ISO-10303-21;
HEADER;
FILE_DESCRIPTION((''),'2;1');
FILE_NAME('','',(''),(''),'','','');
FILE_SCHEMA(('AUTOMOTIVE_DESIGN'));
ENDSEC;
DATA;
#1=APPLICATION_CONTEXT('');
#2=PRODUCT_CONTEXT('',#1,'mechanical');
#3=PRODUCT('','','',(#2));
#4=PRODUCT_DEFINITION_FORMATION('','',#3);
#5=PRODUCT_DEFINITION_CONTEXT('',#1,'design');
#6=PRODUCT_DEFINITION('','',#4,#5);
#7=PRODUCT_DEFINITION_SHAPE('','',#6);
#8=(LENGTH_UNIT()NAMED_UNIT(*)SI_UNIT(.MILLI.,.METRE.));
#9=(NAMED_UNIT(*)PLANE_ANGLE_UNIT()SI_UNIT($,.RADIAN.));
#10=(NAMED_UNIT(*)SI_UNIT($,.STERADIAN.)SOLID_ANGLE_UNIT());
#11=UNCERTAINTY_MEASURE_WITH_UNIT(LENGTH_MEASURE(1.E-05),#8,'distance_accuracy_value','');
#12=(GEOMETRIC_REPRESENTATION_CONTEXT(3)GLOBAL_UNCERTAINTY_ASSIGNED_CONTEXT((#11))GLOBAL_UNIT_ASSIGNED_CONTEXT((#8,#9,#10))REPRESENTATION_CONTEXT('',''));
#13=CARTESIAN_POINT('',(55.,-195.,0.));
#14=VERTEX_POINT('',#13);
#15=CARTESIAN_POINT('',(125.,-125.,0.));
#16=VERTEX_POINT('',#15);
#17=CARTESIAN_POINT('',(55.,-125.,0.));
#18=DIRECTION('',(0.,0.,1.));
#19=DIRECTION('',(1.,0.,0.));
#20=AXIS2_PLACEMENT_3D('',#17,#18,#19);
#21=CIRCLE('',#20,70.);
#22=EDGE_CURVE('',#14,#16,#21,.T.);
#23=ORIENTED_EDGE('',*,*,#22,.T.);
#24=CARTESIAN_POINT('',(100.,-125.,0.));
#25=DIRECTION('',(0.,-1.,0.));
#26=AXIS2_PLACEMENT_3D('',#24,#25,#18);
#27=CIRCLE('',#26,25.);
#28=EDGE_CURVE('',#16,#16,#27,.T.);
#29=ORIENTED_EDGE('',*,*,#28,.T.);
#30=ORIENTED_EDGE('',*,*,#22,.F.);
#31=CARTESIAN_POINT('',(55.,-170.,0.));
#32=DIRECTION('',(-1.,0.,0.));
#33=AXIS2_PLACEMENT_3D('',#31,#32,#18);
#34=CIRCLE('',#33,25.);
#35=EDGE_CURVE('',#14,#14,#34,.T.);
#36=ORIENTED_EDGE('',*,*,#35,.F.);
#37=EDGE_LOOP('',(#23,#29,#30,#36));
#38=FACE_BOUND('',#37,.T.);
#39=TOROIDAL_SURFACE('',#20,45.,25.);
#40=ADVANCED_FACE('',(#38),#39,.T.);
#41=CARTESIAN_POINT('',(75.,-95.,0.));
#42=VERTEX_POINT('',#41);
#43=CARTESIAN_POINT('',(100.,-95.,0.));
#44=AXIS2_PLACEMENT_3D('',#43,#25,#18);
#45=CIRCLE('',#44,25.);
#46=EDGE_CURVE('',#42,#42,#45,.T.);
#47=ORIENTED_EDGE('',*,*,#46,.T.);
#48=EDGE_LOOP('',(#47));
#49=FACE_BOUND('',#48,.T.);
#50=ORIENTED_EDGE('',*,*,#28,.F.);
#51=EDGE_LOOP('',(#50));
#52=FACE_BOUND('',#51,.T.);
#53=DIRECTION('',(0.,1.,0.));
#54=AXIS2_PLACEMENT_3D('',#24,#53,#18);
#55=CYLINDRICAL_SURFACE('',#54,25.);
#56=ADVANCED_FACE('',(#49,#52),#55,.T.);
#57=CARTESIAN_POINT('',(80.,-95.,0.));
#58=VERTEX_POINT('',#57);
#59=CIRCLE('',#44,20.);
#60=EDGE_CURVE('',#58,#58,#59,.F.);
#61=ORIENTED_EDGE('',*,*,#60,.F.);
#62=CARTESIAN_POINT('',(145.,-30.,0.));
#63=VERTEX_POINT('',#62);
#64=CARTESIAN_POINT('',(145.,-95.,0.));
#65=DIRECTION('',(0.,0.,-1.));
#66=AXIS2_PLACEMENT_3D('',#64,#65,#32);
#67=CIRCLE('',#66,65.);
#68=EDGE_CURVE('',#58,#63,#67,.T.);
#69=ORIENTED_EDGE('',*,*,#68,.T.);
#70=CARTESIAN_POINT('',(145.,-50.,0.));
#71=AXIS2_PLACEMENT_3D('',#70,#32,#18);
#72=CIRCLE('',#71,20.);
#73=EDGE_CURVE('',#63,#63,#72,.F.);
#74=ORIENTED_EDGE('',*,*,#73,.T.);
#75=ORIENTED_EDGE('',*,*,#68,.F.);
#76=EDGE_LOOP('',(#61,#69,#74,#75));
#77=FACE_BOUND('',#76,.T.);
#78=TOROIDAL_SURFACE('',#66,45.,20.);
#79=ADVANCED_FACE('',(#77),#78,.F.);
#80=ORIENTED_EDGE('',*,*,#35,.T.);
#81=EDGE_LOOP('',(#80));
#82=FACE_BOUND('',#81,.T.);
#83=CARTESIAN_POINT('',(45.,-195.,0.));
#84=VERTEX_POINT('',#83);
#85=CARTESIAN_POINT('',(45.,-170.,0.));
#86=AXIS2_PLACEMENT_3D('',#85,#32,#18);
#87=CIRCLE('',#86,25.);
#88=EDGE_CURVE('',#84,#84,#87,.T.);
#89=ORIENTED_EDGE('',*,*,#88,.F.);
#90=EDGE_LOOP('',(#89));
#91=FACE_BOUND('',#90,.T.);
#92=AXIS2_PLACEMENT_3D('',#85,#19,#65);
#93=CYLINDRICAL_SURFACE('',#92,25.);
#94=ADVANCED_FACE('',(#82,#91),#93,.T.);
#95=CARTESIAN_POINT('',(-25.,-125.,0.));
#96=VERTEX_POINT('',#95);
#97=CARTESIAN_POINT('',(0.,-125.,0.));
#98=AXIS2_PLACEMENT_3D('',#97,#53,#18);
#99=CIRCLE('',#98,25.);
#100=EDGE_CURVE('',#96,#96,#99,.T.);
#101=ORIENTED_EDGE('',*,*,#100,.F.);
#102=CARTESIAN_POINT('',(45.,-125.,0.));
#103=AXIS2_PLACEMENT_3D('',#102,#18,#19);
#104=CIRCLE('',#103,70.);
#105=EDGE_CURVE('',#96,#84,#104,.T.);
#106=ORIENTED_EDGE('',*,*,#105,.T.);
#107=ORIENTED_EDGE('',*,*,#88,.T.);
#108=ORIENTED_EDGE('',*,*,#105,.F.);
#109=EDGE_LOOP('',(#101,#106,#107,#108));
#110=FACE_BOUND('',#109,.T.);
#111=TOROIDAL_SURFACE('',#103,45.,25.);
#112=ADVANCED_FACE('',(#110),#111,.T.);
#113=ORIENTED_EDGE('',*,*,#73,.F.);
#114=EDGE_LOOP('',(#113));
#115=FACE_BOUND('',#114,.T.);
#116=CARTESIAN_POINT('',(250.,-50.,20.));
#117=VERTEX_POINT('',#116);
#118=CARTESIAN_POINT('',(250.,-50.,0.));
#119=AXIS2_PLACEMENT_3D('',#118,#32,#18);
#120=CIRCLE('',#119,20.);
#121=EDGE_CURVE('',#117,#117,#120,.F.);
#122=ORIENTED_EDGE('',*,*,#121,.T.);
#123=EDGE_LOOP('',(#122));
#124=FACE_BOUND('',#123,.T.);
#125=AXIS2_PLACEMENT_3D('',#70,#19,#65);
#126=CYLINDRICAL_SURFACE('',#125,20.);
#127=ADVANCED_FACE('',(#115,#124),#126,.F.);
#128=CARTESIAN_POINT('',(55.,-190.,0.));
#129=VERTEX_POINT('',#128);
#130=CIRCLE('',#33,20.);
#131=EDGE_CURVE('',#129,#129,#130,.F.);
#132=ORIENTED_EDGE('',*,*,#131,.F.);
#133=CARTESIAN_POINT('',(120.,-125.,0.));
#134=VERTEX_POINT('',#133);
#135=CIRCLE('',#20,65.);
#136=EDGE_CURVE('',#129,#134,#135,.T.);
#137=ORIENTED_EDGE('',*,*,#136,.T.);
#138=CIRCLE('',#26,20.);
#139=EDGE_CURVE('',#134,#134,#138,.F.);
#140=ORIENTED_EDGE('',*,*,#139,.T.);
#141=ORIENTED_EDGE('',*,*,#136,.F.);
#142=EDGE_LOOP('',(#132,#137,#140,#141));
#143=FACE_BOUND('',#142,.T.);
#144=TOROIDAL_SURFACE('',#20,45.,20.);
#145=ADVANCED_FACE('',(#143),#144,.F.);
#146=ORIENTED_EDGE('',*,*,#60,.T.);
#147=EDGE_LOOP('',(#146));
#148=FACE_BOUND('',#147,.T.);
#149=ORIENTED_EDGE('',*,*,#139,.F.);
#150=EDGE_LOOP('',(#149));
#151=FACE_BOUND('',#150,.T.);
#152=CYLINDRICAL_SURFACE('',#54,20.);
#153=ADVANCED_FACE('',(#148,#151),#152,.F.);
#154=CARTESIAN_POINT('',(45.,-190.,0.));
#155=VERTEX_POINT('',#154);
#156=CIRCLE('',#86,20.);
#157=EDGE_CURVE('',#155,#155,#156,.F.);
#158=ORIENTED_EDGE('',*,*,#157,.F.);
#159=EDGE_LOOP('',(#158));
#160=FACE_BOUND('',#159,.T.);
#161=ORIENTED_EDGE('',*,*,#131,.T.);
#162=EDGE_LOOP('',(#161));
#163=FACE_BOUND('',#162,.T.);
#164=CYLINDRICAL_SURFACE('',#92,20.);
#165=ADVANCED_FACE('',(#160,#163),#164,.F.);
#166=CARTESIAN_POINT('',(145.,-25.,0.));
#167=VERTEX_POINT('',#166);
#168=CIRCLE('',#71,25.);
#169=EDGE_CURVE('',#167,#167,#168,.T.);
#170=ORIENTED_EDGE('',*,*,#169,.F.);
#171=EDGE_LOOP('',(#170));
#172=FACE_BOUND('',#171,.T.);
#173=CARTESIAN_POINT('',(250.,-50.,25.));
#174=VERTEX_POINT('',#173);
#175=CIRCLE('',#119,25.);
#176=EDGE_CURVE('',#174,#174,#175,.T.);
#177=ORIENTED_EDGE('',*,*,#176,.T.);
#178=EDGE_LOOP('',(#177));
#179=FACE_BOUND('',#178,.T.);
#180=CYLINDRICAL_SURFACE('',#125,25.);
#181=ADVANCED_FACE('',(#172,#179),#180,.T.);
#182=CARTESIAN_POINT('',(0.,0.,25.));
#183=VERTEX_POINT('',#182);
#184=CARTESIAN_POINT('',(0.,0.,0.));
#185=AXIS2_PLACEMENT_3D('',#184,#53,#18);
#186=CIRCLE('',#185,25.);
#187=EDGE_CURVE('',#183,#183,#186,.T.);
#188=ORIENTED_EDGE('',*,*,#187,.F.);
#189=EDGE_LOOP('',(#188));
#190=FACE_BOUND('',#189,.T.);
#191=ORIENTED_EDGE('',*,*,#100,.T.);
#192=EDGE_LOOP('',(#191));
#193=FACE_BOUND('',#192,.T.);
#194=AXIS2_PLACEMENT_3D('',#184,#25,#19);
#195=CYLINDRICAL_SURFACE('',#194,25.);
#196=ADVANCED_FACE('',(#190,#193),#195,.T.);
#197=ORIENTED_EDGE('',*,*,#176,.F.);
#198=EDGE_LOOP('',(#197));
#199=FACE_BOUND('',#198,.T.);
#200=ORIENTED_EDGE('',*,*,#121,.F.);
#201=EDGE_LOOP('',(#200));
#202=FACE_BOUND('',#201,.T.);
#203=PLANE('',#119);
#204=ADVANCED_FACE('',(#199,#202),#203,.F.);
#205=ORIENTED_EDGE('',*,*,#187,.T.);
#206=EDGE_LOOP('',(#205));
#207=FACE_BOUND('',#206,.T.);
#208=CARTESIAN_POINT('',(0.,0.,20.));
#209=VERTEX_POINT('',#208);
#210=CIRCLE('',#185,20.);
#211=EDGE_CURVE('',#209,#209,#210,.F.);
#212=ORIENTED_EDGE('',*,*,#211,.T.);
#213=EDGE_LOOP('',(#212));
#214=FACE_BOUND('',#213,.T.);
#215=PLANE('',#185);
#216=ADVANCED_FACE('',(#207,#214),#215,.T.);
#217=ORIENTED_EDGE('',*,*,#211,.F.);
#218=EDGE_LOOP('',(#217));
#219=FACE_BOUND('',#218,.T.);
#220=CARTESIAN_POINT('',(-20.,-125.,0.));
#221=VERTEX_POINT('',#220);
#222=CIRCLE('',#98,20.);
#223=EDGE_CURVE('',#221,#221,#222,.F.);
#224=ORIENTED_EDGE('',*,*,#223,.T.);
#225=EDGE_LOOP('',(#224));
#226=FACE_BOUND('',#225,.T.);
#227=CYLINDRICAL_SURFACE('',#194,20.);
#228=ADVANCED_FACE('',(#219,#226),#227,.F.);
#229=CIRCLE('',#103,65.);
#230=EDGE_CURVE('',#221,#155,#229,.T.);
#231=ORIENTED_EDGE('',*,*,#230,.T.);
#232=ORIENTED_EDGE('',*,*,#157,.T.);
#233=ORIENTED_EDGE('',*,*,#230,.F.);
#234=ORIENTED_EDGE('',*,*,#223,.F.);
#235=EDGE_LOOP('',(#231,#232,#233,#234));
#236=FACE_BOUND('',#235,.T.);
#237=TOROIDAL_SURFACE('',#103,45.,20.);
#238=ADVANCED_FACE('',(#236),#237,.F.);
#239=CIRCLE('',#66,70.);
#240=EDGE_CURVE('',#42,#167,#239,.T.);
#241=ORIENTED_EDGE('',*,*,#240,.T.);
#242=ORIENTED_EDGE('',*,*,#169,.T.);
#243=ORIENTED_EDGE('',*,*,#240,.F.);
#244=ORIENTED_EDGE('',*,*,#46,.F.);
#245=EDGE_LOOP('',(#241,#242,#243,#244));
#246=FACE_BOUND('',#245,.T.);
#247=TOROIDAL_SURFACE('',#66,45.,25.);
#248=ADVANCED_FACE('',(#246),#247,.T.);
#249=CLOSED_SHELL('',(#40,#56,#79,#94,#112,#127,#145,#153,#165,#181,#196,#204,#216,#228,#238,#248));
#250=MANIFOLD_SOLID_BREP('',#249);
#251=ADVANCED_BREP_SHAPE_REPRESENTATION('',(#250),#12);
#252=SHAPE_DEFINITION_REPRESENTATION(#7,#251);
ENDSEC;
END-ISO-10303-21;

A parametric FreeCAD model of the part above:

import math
import FreeCAD as App
import Part
import Sketcher
from FreeCAD import Vector

doc = App.newDocument("Part")
params = doc.addObject("Spreadsheet::Sheet", "Params")
for row, (alias, value) in enumerate([
    ("sketch1_diameter", "50 mm"),
    ("sketch1_diameter2", "40 mm"),
    ("sketch2_radius", "45 mm"),
    ("sketch2_width", "10 mm"),
    ("sketch2_width2", "105 mm"),
    ("sketch2_height", "125 mm"),
    ("sketch2_height2", "30 mm"),
], start=1):
    params.set(f"A{row}", alias)
    params.set(f"B{row}", "=" + value)
    params.setAlias(f"B{row}", alias)

body = doc.addObject("PartDesign::Body", "Body")

# Sketch on XZ plane
sketch1 = doc.addObject("Sketcher::SketchObject", "Sketch")
body.addObject(sketch1)
sketch1.AttachmentSupport = (doc.XZ_Plane, [""])
sketch1.MapMode = "FlatFace"
sketch1.addGeometry([
    Part.Circle(Vector(0, 0, 0), Vector(0, 0, 1), 25),
    Part.Circle(Vector(0, 0, 0), Vector(0, 0, 1), 20),
], False)
sketch1.addConstraint([
    Sketcher.Constraint("Coincident", 0, 3, -1, 1),
    Sketcher.Constraint("Coincident", 1, 3, -1, 1),
    Sketcher.Constraint("Diameter", 0, 50.0),
    Sketcher.Constraint("Diameter", 1, 40.0),
])
sketch1.setExpression("Constraints[2]", "Params.sketch1_diameter")
sketch1.setExpression("Constraints[3]", "Params.sketch1_diameter2")

# Sketch on XY plane
sketch2 = doc.addObject("Sketcher::SketchObject", "Sketch001")
body.addObject(sketch2)
sketch2.AttachmentSupport = (doc.XY_Plane, [""])
sketch2.MapMode = "FlatFace"
sketch2.addGeometry([
    Part.LineSegment(Vector(0, 0, 0), Vector(0, -125, 0)),  # 0
    Part.ArcOfCircle(Part.Circle(Vector(45, -125, 0), Vector(0, 0, 1), 45), math.radians(-180), math.radians(-90)),  # 1
    Part.LineSegment(Vector(45, -170, 0), Vector(55, -170, 0)),  # 2
    Part.ArcOfCircle(Part.Circle(Vector(55, -125, 0), Vector(0, 0, 1), 45), math.radians(-90), math.radians(0)),  # 3
    Part.LineSegment(Vector(100, -125, 0), Vector(100, -95, 0)),  # 4
    Part.ArcOfCircle(Part.Circle(Vector(145, -95, 0), Vector(0, 0, 1), 45), math.radians(90), math.radians(180)),  # 5
    Part.LineSegment(Vector(145, -50, 0), Vector(250, -50, 0)),  # 6
], False)
sketch2.addConstraint([
    Sketcher.Constraint("Tangent", 0, 2, 1, 1),
    Sketcher.Constraint("Tangent", 1, 2, 2, 1),
    Sketcher.Constraint("Tangent", 2, 2, 3, 1),
    Sketcher.Constraint("Tangent", 3, 2, 4, 1),
    Sketcher.Constraint("Tangent", 4, 2, 5, 2),
    Sketcher.Constraint("Tangent", 5, 1, 6, 1),
    Sketcher.Constraint("Vertical", 0),
    Sketcher.Constraint("Horizontal", 2),
    Sketcher.Constraint("Vertical", 4),
    Sketcher.Constraint("Horizontal", 6),
    Sketcher.Constraint("Coincident", 0, 1, -1, 1),
    Sketcher.Constraint("Equal", 1, 3),
    Sketcher.Constraint("Equal", 3, 5),
    Sketcher.Constraint("Radius", 1, 45.0),
    Sketcher.Constraint("DistanceX", 2, 1, 2, 2, 10.0),
    Sketcher.Constraint("DistanceX", 6, 1, 6, 2, 105.0),
    Sketcher.Constraint("DistanceY", 0, 2, 0, 1, 125.0),
    Sketcher.Constraint("DistanceY", 4, 1, 4, 2, 30.0),
])
sketch2.setExpression("Constraints[13]", "Params.sketch2_radius")
sketch2.setExpression("Constraints[14]", "Params.sketch2_width")
sketch2.setExpression("Constraints[15]", "Params.sketch2_width2")
sketch2.setExpression("Constraints[16]", "Params.sketch2_height")
sketch2.setExpression("Constraints[17]", "Params.sketch2_height2")
doc.recompute()

additivepipe = doc.addObject("PartDesign::AdditivePipe", "AdditivePipe")
body.addObject(additivepipe)
additivepipe.Profile = sketch1
additivepipe.Spine = (sketch2, ["Edge1", "Edge2", "Edge3", "Edge4", "Edge5", "Edge6", "Edge7"])

doc.recompute()
